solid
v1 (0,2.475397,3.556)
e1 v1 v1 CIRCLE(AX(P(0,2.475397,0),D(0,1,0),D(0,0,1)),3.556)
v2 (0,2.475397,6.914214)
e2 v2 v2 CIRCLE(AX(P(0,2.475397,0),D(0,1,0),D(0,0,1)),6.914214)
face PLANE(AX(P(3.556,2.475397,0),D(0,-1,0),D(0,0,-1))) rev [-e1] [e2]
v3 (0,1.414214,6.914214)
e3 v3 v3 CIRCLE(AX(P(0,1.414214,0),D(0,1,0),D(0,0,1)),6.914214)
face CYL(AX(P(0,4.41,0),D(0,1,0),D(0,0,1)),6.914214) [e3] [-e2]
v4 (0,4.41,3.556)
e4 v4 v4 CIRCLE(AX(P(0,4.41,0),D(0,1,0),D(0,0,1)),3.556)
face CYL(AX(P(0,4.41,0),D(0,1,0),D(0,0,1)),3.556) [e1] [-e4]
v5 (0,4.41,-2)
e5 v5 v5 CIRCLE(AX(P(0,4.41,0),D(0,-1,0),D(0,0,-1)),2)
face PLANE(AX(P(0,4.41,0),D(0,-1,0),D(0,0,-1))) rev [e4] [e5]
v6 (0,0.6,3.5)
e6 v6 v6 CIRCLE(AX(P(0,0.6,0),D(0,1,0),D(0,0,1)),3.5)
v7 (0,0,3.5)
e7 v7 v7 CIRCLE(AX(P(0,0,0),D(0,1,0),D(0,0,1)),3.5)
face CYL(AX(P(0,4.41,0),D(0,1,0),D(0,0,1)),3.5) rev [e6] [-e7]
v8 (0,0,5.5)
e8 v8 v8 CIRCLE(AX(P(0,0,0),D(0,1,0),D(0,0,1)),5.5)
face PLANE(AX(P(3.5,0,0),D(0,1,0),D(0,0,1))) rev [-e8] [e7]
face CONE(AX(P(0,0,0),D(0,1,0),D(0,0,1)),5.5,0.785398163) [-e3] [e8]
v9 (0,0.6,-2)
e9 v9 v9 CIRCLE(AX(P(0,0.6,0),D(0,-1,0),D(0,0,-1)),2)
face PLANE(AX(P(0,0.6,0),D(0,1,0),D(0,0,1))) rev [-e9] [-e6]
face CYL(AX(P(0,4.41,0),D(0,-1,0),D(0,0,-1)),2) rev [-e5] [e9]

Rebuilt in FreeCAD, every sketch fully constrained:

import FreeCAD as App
import Part
import Sketcher
from FreeCAD import Vector
Q = App.Units.Quantity

doc = App.newDocument("Part")
params = doc.addObject("Spreadsheet::Sheet", "Params")
for row, (alias, value) in enumerate([
    ("sketch1_width", "2 mm"),
    ("sketch1_length", "2 mm"),
    ("sketch1_width2", "3.5 mm"),
    ("sketch1_height", "0.6 mm"),
    ("sketch1_height2", "3.81 mm"),
    ("revolution_angle", "360 deg"),
    ("sketch2_diameter", "4 mm"),
], start=1):
    params.set(f"A{row}", alias)
    params.set(f"B{row}", "=" + value)
    params.setAlias(f"B{row}", alias)

body = doc.addObject("PartDesign::Body", "Body")

# Sketch on XY plane
sketch1 = body.newObject("Sketcher::SketchObject", "Sketch")
sketch1.AttachmentSupport = (doc.getObject("XY_Plane"), [""])
sketch1.MapMode = "FlatFace"
sketch1.addGeometry([
    Part.LineSegment(Vector(0, 0.6, 0), Vector(3.5, 0.6, 0)),  # 0
    Part.LineSegment(Vector(3.5, 0.6, 0), Vector(3.5, 0, 0)),  # 1
    Part.LineSegment(Vector(3.5, 0, 0), Vector(5.5, 0, 0)),  # 2
    Part.LineSegment(Vector(5.5, 0, 0), Vector(6.9, 1.4, 0)),  # 3
    Part.LineSegment(Vector(6.9, 1.4, 0), Vector(6.9, 2.5, 0)),  # 4
    Part.LineSegment(Vector(6.9, 2.5, 0), Vector(3.6, 2.5, 0)),  # 5
    Part.LineSegment(Vector(3.6, 2.5, 0), Vector(3.6, 4.4, 0)),  # 6
    Part.LineSegment(Vector(3.6, 4.4, 0), Vector(0, 4.4, 0)),  # 7
    Part.LineSegment(Vector(0, 4.4, 0), Vector(0, 0.6, 0)),  # 8
], False)
sketch1.addConstraint([
    Sketcher.Constraint("Coincident", 0, 2, 1, 1),
    Sketcher.Constraint("Coincident", 1, 2, 2, 1),
    Sketcher.Constraint("Coincident", 2, 2, 3, 1),
    Sketcher.Constraint("Coincident", 3, 2, 4, 1),
    Sketcher.Constraint("Coincident", 4, 2, 5, 1),
    Sketcher.Constraint("Coincident", 5, 2, 6, 1),
    Sketcher.Constraint("Coincident", 6, 2, 7, 1),
    Sketcher.Constraint("Coincident", 7, 2, 8, 1),
    Sketcher.Constraint("Coincident", 8, 2, 0, 1),
    Sketcher.Constraint("Horizontal", 0),
    Sketcher.Constraint("Vertical", 1),
    Sketcher.Constraint("Horizontal", 2),
    Sketcher.Constraint("Vertical", 4),
    Sketcher.Constraint("Horizontal", 5),
    Sketcher.Constraint("Vertical", 6),
    Sketcher.Constraint("Horizontal", 7),
    Sketcher.Constraint("Vertical", 8),
    Sketcher.Constraint("PointOnObject", 1, 2, -1),
    Sketcher.Constraint("PointOnObject", 7, 2, -2),
    Sketcher.Constraint("DistanceX", 2, 1, 2, 2, Q("2 mm")),
    Sketcher.Constraint("Angle", 3, Q("45 deg")),
    Sketcher.Constraint("Distance", 3, Q("2 mm")),
    Sketcher.Constraint("DistanceX", 0, 1, 0, 2, Q("3.5 mm")),
    Sketcher.Constraint("DistanceY", 1, 2, 1, 1, Q("0.6 mm")),
    Sketcher.Constraint("DistanceY", 8, 2, 8, 1, Q("3.81 mm")),
    Sketcher.Constraint("DistanceX", 7, 2, 7, 1, Q("3.556 mm")),
    Sketcher.Constraint("DistanceY", 4, 1, 4, 2, Q("1.061184 mm")),
])
sketch1.setExpression("Constraints[19]", "Params.sketch1_width")
sketch1.setExpression("Constraints[21]", "Params.sketch1_length")
sketch1.setExpression("Constraints[22]", "Params.sketch1_width2")
sketch1.setExpression("Constraints[23]", "Params.sketch1_height")
sketch1.setExpression("Constraints[24]", "Params.sketch1_height2")
revolution = body.newObject("PartDesign::Revolution", "Revolution")
revolution.Profile = sketch1
revolution.ReferenceAxis = (sketch1, ["V_Axis"])
revolution.setExpression("Angle", "Params.revolution_angle")

# Sketch on XZ plane
sketch2 = body.newObject("Sketcher::SketchObject", "Sketch001")
sketch2.AttachmentSupport = (doc.getObject("XZ_Plane"), [""])
sketch2.MapMode = "FlatFace"
sketch2.AttachmentOffset = App.Placement(Vector(0, 0, -0.6), App.Rotation())
sketch2.addGeometry(Part.Circle(Vector(0, 0, 0), Vector(0, 0, 1), 2), False)
sketch2.addConstraint([
    Sketcher.Constraint("Coincident", 0, 3, -1, 1),
    Sketcher.Constraint("Diameter", 0, Q("4 mm")),
])
sketch2.setExpression("Constraints[1]", "Params.sketch2_diameter")
pocket1 = body.newObject("PartDesign::Pocket", "Pocket")
pocket1.Profile = sketch2
pocket1.Type = "ThroughAll"

doc.recompute()
